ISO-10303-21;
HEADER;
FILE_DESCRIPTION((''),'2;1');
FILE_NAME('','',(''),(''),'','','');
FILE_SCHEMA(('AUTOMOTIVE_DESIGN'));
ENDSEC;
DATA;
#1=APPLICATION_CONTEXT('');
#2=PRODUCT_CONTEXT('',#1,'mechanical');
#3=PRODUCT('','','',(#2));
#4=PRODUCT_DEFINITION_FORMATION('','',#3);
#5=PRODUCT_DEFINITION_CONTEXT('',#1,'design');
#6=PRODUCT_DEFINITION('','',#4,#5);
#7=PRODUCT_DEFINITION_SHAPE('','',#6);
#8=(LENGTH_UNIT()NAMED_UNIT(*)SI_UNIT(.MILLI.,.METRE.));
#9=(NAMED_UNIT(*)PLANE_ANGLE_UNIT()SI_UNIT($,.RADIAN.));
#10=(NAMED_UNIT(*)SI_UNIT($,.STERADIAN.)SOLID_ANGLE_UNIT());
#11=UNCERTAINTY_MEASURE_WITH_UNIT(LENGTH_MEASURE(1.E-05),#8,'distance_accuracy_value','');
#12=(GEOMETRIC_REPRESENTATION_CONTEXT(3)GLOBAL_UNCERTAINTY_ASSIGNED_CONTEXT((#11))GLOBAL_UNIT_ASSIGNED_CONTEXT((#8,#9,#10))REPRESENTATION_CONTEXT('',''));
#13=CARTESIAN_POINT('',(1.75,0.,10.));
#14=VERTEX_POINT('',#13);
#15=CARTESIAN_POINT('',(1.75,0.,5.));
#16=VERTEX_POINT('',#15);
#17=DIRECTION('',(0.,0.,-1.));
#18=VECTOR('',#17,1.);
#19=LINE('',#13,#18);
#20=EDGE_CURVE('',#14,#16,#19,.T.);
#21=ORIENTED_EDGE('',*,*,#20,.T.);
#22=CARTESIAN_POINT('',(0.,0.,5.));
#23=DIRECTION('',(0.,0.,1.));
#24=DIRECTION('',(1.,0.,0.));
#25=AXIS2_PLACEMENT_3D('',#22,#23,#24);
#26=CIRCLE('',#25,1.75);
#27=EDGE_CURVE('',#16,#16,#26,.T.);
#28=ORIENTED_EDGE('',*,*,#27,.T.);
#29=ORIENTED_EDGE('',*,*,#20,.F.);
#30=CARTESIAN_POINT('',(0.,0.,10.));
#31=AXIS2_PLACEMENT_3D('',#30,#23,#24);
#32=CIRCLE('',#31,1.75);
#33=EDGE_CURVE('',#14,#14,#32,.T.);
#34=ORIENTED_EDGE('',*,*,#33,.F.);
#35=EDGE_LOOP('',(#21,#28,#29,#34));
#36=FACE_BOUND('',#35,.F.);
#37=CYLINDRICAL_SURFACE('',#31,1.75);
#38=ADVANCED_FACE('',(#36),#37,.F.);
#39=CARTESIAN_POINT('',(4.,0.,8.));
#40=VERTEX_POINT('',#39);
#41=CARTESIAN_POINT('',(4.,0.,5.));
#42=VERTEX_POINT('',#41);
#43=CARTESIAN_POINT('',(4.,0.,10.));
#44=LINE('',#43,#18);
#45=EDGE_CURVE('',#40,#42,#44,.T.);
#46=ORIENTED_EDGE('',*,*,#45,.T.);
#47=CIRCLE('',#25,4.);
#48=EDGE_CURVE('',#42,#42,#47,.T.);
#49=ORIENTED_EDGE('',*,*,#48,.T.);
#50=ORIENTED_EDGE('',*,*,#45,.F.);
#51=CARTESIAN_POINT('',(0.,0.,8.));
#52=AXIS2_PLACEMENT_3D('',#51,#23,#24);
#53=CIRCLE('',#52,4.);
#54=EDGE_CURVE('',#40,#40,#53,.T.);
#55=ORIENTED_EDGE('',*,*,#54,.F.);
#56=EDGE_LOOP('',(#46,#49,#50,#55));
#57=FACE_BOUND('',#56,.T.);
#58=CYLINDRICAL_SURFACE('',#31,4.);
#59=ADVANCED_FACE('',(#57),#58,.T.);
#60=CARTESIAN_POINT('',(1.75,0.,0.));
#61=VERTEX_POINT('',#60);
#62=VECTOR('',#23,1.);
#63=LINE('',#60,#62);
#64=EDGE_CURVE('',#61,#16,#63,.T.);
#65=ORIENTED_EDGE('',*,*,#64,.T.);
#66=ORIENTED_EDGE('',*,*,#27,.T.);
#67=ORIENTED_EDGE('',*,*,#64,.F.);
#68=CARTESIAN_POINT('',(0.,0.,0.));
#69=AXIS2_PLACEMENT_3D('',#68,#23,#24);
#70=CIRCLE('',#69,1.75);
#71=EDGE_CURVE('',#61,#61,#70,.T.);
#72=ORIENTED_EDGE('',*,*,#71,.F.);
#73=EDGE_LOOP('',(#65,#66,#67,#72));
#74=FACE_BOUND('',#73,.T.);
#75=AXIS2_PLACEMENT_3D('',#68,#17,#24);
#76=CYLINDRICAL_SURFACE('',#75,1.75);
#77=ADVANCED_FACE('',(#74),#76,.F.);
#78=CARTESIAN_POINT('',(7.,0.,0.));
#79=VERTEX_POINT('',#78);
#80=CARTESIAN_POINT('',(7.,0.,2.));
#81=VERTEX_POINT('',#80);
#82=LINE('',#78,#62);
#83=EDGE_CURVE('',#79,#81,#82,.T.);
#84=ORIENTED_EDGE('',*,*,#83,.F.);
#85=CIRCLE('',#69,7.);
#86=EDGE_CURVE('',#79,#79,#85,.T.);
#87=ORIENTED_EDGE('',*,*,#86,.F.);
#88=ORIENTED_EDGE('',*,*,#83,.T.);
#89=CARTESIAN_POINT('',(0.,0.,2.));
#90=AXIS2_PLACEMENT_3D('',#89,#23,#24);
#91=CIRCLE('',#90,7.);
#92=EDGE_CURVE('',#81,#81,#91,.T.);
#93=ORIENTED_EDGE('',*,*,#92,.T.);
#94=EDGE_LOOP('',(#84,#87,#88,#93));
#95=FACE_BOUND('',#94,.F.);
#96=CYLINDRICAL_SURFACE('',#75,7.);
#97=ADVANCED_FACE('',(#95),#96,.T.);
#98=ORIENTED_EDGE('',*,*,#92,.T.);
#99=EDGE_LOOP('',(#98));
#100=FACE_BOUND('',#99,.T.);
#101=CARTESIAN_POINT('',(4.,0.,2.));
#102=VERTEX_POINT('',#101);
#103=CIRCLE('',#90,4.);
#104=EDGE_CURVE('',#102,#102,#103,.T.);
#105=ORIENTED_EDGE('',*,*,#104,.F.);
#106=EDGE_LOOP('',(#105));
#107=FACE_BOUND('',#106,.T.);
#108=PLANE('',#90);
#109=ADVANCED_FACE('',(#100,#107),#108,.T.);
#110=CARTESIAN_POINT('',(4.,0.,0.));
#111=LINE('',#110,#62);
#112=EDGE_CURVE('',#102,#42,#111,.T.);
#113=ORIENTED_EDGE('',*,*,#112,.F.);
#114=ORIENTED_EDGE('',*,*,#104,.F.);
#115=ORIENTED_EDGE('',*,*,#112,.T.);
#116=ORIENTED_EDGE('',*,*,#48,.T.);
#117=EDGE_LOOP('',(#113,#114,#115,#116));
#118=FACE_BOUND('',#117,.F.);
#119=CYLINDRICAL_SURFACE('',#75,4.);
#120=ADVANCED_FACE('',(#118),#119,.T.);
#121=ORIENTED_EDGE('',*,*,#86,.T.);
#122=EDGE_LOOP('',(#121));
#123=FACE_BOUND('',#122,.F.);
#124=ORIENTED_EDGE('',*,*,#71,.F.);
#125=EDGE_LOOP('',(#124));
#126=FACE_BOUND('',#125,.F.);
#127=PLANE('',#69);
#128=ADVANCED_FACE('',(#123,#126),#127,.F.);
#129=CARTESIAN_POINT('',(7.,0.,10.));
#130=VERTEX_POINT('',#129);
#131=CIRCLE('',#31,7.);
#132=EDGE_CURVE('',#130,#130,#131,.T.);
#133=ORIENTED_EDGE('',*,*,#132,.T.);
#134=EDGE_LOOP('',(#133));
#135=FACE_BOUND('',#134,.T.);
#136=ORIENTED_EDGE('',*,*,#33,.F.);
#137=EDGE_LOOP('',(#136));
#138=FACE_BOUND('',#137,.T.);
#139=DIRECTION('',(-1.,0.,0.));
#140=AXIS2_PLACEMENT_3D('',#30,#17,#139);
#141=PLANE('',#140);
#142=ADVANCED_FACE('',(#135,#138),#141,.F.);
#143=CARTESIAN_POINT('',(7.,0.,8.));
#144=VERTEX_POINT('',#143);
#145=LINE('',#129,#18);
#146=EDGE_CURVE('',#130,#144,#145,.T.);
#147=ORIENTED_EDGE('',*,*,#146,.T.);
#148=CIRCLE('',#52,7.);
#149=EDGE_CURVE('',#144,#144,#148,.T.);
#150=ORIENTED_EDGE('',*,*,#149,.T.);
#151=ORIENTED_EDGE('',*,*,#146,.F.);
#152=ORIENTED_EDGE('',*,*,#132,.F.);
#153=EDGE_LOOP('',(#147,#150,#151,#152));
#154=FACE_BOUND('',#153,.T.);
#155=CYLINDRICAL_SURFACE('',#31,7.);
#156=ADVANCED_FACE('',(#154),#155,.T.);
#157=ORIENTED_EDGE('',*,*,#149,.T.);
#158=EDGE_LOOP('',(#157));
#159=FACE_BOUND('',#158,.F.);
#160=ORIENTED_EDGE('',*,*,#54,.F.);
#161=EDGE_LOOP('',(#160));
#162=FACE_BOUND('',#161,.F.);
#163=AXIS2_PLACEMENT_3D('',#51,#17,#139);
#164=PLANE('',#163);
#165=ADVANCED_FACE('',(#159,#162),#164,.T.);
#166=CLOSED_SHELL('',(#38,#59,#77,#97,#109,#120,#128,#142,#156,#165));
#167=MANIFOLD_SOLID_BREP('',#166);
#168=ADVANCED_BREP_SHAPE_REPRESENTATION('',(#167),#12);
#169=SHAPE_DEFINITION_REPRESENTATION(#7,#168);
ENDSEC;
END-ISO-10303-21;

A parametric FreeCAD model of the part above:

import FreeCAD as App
import Part
import Sketcher
from FreeCAD import Vector
Q = App.Units.Quantity

doc = App.newDocument("Part")
body = doc.addObject("PartDesign::Body", "Body")

# Sketch on XY plane
sketch1 = body.newObject("Sketcher::SketchObject", "Sketch")
sketch1.AttachmentSupport = (doc.getObject("XY_Plane"), [""])
sketch1.MapMode = "FlatFace"
sketch1.addGeometry([
    Part.Circle(Vector(0, 0, 0), Vector(0, 0, 1), 4),
    Part.Circle(Vector(0, 0, 0), Vector(0, 0, 1), 1.75),
], False)
sketch1.addConstraint([
    Sketcher.Constraint("Coincident", 0, 3, -1, 1),
    Sketcher.Constraint("Coincident", 1, 3, -1, 1),
    Sketcher.Constraint("Diameter", 0, Q("8 mm")),
    Sketcher.Constraint("Diameter", 1, Q("3.5 mm")),
])
pad1 = body.newObject("PartDesign::Pad", "Pad")
pad1.Profile = sketch1
pad1.Length = 5

# Sketch on XY plane
sketch2 = body.newObject("Sketcher::SketchObject", "Sketch001")
sketch2.AttachmentSupport = (doc.getObject("XY_Plane"), [""])
sketch2.MapMode = "FlatFace"
sketch2.addGeometry([
    Part.Circle(Vector(0, 0, 0), Vector(0, 0, 1), 7),
    Part.Circle(Vector(0, 0, 0), Vector(0, 0, 1), 4),
], False)
sketch2.addConstraint([
    Sketcher.Constraint("Coincident", 0, 3, -1, 1),
    Sketcher.Constraint("Coincident", 1, 3, -1, 1),
    Sketcher.Constraint("Diameter", 1, Q("8 mm")),
    Sketcher.Constraint("Diameter", 0, Q("14 mm")),
])
pad2 = body.newObject("PartDesign::Pad", "Pad001")
pad2.Profile = sketch2
pad2.Length = 2
doc.recompute()

datumplane = body.newObject("PartDesign::Plane", "DatumPlane")
datumplane.AttachmentSupport = (doc.getObject("XY_Plane"), [""])
datumplane.MapMode = "FlatFace"
datumplane.AttachmentOffset = App.Placement(Vector(0, 0, 5), App.Rotation())
mirrored = body.newObject("PartDesign::Mirrored", "Mirrored")
mirrored.TransformMode = "Transform body"
mirrored.MirrorPlane = (datumplane, [""])
body.Tip = mirrored

doc.recompute()
